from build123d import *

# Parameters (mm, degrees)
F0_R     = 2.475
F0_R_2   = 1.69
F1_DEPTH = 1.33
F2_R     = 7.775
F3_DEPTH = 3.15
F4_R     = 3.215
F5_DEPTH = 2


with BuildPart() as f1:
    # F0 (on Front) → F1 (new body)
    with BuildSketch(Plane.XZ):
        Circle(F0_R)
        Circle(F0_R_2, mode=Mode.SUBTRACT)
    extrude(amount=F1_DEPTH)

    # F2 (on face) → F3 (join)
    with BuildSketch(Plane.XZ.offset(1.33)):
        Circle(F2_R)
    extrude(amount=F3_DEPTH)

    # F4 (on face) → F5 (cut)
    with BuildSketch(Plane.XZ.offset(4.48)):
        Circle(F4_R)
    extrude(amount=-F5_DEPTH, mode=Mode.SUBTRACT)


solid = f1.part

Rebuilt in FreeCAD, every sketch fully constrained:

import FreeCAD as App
import Part
import Sketcher

doc = App.newDocument("Part")
body = doc.addObject("PartDesign::Body", "Body")

# Sketch on XZ plane
sketch1 = body.newObject("Sketcher::SketchObject", "Sketch")
sketch1.AttachmentSupport = (doc.getObject("XZ_Plane"), [""])
sketch1.MapMode = "FlatFace"
sketch1.addGeometry([
    Part.Circle(App.Vector(0, 0, 0), App.Vector(0, 0, 1), 2.475),
    Part.Circle(App.Vector(0, 0, 0), App.Vector(0, 0, 1), 1.69),
], False)
sketch1.addConstraint([
    Sketcher.Constraint("Coincident", 0, 3, -1, 1),
    Sketcher.Constraint("Coincident", 1, 3, -1, 1),
    Sketcher.Constraint("Diameter", 0, 4.95),
    Sketcher.Constraint("Diameter", 1, 3.38),
])
pad1 = body.newObject("PartDesign::Pad", "Pad")
pad1.Profile = sketch1
pad1.Length = 1.33

# Sketch on XZ plane
sketch2 = body.newObject("Sketcher::SketchObject", "Sketch001")
sketch2.AttachmentSupport = (doc.getObject("XZ_Plane"), [""])
sketch2.MapMode = "FlatFace"
sketch2.AttachmentOffset = App.Placement(App.Vector(0, 0, 1.33), App.Rotation())
sketch2.addGeometry(Part.Circle(App.Vector(0, 0, 0), App.Vector(0, 0, 1), 7.775), False)
sketch2.addConstraint([
    Sketcher.Constraint("Coincident", 0, 3, -1, 1),
    Sketcher.Constraint("Diameter", 0, 15.55),
])
pad2 = body.newObject("PartDesign::Pad", "Pad001")
pad2.Profile = sketch2
pad2.Length = 3.15

# Sketch on XZ plane
sketch3 = body.newObject("Sketcher::SketchObject", "Sketch002")
sketch3.AttachmentSupport = (doc.getObject("XZ_Plane"), [""])
sketch3.MapMode = "FlatFace"
sketch3.AttachmentOffset = App.Placement(App.Vector(0, 0, 4.48), App.Rotation())
sketch3.addGeometry(Part.Circle(App.Vector(0, 0, 0), App.Vector(0, 0, 1), 3.215), False)
sketch3.addConstraint([
    Sketcher.Constraint("Coincident", 0, 3, -1, 1),
    Sketcher.Constraint("Diameter", 0, 6.43),
])
pocket1 = body.newObject("PartDesign::Pocket", "Pocket")
pocket1.Profile = sketch3
pocket1.Length = 2

doc.recompute()
